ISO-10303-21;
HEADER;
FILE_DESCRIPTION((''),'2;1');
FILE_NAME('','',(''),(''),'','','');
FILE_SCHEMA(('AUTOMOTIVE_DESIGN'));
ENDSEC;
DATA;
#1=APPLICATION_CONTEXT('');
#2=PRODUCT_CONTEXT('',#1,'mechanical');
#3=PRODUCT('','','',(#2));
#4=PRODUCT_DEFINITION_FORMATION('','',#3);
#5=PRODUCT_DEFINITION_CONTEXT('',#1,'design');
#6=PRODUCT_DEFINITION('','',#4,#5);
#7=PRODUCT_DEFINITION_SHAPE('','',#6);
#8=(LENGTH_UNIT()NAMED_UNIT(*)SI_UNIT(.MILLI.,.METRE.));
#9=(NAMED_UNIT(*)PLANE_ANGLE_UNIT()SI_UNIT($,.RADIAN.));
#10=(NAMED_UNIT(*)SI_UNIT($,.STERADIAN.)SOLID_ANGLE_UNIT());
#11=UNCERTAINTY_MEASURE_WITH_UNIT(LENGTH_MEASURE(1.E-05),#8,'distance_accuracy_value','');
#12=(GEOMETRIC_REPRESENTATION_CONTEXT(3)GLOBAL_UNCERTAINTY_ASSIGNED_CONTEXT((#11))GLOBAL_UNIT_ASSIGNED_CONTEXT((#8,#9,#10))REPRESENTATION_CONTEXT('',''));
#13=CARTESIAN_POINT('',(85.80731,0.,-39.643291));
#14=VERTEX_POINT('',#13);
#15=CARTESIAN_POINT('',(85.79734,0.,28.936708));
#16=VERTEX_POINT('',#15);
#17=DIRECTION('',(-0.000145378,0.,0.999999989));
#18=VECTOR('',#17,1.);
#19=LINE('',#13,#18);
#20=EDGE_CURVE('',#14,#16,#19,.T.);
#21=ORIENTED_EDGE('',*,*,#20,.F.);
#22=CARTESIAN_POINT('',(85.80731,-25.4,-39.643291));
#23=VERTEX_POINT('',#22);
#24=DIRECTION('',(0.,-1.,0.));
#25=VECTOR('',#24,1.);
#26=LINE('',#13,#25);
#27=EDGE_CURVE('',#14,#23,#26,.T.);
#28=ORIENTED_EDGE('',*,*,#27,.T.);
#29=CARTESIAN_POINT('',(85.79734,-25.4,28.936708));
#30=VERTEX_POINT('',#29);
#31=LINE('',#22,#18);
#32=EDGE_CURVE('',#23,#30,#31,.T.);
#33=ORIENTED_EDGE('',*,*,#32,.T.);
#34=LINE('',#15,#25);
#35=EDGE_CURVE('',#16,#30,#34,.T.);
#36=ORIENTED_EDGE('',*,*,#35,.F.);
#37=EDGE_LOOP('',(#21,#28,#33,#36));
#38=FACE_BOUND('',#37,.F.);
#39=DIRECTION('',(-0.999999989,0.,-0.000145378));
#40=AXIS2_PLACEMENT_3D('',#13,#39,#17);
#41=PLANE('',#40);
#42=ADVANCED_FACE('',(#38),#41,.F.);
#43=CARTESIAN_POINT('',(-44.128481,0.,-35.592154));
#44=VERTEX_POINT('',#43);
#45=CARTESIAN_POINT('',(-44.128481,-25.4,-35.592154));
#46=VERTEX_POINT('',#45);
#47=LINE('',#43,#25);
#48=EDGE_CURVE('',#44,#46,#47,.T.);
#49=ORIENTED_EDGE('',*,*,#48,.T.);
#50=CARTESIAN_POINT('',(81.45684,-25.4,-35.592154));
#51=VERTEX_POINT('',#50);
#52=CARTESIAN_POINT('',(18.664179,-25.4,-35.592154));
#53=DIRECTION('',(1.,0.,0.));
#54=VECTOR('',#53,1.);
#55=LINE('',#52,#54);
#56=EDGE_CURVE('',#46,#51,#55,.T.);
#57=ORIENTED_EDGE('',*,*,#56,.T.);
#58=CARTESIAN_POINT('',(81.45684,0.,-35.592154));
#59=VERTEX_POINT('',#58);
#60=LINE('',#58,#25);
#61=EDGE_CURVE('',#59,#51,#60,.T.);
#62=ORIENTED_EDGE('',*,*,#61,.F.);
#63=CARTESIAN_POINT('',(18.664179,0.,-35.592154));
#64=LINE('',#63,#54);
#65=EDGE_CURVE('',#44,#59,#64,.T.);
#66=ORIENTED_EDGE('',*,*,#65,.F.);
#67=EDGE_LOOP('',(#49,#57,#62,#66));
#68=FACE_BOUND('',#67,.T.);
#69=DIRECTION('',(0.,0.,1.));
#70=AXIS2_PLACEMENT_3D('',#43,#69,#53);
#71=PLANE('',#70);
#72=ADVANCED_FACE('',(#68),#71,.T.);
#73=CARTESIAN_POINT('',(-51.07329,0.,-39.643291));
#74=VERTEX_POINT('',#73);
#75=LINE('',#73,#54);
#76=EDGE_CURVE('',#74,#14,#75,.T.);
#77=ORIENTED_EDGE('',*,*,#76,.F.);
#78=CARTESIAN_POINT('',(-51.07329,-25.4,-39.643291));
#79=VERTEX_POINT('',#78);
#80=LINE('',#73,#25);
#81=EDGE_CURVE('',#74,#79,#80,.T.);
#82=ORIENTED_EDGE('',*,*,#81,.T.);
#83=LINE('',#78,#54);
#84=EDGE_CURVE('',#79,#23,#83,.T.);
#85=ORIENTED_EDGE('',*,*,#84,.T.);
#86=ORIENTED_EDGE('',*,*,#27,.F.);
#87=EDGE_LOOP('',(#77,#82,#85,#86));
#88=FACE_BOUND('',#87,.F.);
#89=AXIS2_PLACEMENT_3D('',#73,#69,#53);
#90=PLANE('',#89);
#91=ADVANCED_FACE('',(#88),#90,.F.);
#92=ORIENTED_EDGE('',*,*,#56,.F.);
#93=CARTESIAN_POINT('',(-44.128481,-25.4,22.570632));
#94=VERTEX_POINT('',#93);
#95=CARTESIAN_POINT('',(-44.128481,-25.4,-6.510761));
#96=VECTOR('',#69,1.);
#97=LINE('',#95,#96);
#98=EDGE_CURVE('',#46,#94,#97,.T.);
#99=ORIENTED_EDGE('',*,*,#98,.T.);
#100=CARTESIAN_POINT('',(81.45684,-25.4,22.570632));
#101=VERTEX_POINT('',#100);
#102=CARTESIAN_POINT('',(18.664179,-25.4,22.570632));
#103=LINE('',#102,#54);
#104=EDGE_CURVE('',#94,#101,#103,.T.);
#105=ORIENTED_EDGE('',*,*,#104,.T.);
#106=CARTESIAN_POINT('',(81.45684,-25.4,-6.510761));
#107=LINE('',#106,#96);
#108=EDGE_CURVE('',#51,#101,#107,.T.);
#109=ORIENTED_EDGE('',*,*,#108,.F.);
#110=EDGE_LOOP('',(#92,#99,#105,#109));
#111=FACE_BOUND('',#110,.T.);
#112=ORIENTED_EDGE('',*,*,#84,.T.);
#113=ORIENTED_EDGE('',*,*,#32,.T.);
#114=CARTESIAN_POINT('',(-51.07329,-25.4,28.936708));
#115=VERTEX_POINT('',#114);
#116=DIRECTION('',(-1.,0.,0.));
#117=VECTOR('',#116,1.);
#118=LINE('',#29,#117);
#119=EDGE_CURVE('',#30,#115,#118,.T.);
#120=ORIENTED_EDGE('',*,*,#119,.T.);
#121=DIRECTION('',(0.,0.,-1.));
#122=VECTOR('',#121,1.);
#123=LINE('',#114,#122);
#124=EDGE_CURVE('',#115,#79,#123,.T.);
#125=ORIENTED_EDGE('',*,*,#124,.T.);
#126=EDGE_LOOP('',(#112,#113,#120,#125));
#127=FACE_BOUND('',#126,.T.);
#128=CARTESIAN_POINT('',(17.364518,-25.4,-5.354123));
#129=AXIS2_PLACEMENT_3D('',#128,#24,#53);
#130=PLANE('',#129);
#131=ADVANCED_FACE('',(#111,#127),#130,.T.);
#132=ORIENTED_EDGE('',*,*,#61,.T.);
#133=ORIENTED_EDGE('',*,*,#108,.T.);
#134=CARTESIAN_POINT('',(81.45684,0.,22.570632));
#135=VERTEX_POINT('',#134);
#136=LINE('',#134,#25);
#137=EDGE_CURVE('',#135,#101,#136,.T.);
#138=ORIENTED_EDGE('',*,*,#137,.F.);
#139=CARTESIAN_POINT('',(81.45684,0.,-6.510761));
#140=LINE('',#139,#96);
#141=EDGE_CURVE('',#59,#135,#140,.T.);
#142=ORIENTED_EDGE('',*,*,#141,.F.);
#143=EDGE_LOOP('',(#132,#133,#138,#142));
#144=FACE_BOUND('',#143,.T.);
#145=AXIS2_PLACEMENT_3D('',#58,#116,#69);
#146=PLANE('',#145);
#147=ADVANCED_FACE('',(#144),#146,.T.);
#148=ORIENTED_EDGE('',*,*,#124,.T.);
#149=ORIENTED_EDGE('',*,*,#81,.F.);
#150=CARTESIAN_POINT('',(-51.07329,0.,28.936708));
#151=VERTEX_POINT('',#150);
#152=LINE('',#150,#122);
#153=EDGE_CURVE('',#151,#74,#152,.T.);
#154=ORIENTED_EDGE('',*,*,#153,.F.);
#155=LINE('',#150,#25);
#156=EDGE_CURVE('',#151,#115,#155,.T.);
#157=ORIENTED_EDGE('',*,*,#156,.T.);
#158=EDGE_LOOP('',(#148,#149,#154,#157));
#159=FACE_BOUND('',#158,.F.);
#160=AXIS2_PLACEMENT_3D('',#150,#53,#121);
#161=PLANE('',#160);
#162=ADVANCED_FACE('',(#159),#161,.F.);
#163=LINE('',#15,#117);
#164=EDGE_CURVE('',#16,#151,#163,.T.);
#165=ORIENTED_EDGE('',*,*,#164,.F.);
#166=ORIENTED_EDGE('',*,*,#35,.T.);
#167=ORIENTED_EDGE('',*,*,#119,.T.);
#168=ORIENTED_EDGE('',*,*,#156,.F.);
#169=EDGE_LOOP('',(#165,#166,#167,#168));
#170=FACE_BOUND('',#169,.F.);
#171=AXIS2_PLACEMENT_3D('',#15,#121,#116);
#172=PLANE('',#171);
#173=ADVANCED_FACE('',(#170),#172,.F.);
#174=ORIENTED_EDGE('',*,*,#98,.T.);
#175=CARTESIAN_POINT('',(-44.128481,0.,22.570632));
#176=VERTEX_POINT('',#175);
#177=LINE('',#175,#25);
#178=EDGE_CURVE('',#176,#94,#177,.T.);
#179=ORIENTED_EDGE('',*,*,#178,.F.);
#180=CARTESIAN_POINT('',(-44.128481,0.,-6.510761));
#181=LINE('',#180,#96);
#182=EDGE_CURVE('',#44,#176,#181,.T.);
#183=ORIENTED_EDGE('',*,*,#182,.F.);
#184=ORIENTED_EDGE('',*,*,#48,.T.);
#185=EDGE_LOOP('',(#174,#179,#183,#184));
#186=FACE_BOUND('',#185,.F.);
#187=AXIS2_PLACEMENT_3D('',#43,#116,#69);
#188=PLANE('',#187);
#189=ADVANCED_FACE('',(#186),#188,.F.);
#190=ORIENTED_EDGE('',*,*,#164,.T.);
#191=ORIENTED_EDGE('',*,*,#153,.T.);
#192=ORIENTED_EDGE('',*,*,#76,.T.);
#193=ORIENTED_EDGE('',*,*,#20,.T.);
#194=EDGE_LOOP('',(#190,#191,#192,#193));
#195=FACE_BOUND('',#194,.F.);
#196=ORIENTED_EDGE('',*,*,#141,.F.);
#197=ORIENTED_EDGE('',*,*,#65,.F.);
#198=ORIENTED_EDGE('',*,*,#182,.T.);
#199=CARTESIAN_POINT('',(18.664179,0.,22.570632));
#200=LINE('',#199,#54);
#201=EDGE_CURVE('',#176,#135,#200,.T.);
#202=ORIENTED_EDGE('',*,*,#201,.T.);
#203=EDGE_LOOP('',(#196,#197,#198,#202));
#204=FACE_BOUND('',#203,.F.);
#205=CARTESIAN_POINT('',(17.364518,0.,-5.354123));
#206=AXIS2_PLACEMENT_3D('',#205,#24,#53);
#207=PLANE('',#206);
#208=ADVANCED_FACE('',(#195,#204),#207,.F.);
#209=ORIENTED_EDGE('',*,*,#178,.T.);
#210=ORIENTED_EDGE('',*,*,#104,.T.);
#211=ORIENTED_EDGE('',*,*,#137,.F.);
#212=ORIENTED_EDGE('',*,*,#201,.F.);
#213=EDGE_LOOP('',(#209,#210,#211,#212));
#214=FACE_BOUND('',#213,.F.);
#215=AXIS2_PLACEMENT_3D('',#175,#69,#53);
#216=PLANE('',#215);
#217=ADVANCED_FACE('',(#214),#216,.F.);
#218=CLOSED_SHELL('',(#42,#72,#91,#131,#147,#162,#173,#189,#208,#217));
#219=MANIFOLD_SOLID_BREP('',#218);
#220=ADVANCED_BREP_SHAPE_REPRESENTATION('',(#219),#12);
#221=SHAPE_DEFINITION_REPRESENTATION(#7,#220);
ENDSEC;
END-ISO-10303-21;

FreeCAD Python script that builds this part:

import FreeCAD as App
import Part
import Sketcher
Q = App.Units.Quantity


def add_polygon(sketch, points):
    """Adds a closed chain of lines whose ends are joined by coincident constraints."""
    first, n = sketch.GeometryCount, len(points)
    for a, b in zip(points, points[1:] + points[:1]):
        sketch.addGeometry(Part.LineSegment(App.Vector(*a, 0), App.Vector(*b, 0)), False)
    for i in range(n):
        sketch.addConstraint(Sketcher.Constraint("Coincident", first + i, 2, first + (i + 1) % n, 1))

doc = App.newDocument("Part")
params = doc.addObject("Spreadsheet::Sheet", "Params")
for row, (alias, value) in enumerate([
    ("sketch1_height", "2.7 in"),
    ("sketch1_width", "5.389 in"),
    ("pad1_length", "1 in"),
], start=1):
    params.set(f"A{row}", alias)
    params.set(f"B{row}", "=" + value)
    params.setAlias(f"B{row}", alias)

body = doc.addObject("PartDesign::Body", "Body")

sketch1 = body.newObject("Sketcher::SketchObject", "Sketch")
sketch1.AttachmentSupport = (doc.getObject("XZ_Plane"), [""])
sketch1.MapMode = "FlatFace"
add_polygon(sketch1, [(86, 29), (-51, 29), (-51, -40), (86, -40)])
add_polygon(sketch1, [(81, -36), (-44, -36), (-44, 23), (81, 23)])
sketch1.addConstraint([
    Sketcher.Constraint("Horizontal", 0),
    Sketcher.Constraint("Vertical", 1),
    Sketcher.Constraint("Horizontal", 2),
    Sketcher.Constraint("Horizontal", 4),
    Sketcher.Constraint("Vertical", 5),
    Sketcher.Constraint("Horizontal", 6),
    Sketcher.Constraint("Vertical", 7),
    Sketcher.Constraint("DistanceY", 1, 2, 1, 1, Q("2.7 in")),
    Sketcher.Constraint("DistanceX", 2, 1, 2, 2, Q("5.389 in")),
    Sketcher.Constraint("DistanceX", 0, 2, 0, 1, 136.87063),
    Sketcher.Constraint("DistanceX", 4, 2, 4, 1, 125.585321),
    Sketcher.Constraint("DistanceX", 6, 2, 3, 2, 4.340501),
    Sketcher.Constraint("DistanceY", 5, 1, 5, 2, 58.162786),
    Sketcher.Constraint("DistanceX", 0, 2, -1, 1, 51.07329),
    Sketcher.Constraint("DistanceY", 1, 2, -1, 1, 39.643291),
    Sketcher.Constraint("DistanceY", -1, 1, 5, 2, 22.570632),
])
sketch1.setExpression("Constraints[15]", "Params.sketch1_height")
sketch1.setExpression("Constraints[16]", "Params.sketch1_width")
pad1 = body.newObject("PartDesign::Pad", "Pad")
pad1.Profile = sketch1
pad1.setExpression("Length", "Params.pad1_length")

doc.recompute()
